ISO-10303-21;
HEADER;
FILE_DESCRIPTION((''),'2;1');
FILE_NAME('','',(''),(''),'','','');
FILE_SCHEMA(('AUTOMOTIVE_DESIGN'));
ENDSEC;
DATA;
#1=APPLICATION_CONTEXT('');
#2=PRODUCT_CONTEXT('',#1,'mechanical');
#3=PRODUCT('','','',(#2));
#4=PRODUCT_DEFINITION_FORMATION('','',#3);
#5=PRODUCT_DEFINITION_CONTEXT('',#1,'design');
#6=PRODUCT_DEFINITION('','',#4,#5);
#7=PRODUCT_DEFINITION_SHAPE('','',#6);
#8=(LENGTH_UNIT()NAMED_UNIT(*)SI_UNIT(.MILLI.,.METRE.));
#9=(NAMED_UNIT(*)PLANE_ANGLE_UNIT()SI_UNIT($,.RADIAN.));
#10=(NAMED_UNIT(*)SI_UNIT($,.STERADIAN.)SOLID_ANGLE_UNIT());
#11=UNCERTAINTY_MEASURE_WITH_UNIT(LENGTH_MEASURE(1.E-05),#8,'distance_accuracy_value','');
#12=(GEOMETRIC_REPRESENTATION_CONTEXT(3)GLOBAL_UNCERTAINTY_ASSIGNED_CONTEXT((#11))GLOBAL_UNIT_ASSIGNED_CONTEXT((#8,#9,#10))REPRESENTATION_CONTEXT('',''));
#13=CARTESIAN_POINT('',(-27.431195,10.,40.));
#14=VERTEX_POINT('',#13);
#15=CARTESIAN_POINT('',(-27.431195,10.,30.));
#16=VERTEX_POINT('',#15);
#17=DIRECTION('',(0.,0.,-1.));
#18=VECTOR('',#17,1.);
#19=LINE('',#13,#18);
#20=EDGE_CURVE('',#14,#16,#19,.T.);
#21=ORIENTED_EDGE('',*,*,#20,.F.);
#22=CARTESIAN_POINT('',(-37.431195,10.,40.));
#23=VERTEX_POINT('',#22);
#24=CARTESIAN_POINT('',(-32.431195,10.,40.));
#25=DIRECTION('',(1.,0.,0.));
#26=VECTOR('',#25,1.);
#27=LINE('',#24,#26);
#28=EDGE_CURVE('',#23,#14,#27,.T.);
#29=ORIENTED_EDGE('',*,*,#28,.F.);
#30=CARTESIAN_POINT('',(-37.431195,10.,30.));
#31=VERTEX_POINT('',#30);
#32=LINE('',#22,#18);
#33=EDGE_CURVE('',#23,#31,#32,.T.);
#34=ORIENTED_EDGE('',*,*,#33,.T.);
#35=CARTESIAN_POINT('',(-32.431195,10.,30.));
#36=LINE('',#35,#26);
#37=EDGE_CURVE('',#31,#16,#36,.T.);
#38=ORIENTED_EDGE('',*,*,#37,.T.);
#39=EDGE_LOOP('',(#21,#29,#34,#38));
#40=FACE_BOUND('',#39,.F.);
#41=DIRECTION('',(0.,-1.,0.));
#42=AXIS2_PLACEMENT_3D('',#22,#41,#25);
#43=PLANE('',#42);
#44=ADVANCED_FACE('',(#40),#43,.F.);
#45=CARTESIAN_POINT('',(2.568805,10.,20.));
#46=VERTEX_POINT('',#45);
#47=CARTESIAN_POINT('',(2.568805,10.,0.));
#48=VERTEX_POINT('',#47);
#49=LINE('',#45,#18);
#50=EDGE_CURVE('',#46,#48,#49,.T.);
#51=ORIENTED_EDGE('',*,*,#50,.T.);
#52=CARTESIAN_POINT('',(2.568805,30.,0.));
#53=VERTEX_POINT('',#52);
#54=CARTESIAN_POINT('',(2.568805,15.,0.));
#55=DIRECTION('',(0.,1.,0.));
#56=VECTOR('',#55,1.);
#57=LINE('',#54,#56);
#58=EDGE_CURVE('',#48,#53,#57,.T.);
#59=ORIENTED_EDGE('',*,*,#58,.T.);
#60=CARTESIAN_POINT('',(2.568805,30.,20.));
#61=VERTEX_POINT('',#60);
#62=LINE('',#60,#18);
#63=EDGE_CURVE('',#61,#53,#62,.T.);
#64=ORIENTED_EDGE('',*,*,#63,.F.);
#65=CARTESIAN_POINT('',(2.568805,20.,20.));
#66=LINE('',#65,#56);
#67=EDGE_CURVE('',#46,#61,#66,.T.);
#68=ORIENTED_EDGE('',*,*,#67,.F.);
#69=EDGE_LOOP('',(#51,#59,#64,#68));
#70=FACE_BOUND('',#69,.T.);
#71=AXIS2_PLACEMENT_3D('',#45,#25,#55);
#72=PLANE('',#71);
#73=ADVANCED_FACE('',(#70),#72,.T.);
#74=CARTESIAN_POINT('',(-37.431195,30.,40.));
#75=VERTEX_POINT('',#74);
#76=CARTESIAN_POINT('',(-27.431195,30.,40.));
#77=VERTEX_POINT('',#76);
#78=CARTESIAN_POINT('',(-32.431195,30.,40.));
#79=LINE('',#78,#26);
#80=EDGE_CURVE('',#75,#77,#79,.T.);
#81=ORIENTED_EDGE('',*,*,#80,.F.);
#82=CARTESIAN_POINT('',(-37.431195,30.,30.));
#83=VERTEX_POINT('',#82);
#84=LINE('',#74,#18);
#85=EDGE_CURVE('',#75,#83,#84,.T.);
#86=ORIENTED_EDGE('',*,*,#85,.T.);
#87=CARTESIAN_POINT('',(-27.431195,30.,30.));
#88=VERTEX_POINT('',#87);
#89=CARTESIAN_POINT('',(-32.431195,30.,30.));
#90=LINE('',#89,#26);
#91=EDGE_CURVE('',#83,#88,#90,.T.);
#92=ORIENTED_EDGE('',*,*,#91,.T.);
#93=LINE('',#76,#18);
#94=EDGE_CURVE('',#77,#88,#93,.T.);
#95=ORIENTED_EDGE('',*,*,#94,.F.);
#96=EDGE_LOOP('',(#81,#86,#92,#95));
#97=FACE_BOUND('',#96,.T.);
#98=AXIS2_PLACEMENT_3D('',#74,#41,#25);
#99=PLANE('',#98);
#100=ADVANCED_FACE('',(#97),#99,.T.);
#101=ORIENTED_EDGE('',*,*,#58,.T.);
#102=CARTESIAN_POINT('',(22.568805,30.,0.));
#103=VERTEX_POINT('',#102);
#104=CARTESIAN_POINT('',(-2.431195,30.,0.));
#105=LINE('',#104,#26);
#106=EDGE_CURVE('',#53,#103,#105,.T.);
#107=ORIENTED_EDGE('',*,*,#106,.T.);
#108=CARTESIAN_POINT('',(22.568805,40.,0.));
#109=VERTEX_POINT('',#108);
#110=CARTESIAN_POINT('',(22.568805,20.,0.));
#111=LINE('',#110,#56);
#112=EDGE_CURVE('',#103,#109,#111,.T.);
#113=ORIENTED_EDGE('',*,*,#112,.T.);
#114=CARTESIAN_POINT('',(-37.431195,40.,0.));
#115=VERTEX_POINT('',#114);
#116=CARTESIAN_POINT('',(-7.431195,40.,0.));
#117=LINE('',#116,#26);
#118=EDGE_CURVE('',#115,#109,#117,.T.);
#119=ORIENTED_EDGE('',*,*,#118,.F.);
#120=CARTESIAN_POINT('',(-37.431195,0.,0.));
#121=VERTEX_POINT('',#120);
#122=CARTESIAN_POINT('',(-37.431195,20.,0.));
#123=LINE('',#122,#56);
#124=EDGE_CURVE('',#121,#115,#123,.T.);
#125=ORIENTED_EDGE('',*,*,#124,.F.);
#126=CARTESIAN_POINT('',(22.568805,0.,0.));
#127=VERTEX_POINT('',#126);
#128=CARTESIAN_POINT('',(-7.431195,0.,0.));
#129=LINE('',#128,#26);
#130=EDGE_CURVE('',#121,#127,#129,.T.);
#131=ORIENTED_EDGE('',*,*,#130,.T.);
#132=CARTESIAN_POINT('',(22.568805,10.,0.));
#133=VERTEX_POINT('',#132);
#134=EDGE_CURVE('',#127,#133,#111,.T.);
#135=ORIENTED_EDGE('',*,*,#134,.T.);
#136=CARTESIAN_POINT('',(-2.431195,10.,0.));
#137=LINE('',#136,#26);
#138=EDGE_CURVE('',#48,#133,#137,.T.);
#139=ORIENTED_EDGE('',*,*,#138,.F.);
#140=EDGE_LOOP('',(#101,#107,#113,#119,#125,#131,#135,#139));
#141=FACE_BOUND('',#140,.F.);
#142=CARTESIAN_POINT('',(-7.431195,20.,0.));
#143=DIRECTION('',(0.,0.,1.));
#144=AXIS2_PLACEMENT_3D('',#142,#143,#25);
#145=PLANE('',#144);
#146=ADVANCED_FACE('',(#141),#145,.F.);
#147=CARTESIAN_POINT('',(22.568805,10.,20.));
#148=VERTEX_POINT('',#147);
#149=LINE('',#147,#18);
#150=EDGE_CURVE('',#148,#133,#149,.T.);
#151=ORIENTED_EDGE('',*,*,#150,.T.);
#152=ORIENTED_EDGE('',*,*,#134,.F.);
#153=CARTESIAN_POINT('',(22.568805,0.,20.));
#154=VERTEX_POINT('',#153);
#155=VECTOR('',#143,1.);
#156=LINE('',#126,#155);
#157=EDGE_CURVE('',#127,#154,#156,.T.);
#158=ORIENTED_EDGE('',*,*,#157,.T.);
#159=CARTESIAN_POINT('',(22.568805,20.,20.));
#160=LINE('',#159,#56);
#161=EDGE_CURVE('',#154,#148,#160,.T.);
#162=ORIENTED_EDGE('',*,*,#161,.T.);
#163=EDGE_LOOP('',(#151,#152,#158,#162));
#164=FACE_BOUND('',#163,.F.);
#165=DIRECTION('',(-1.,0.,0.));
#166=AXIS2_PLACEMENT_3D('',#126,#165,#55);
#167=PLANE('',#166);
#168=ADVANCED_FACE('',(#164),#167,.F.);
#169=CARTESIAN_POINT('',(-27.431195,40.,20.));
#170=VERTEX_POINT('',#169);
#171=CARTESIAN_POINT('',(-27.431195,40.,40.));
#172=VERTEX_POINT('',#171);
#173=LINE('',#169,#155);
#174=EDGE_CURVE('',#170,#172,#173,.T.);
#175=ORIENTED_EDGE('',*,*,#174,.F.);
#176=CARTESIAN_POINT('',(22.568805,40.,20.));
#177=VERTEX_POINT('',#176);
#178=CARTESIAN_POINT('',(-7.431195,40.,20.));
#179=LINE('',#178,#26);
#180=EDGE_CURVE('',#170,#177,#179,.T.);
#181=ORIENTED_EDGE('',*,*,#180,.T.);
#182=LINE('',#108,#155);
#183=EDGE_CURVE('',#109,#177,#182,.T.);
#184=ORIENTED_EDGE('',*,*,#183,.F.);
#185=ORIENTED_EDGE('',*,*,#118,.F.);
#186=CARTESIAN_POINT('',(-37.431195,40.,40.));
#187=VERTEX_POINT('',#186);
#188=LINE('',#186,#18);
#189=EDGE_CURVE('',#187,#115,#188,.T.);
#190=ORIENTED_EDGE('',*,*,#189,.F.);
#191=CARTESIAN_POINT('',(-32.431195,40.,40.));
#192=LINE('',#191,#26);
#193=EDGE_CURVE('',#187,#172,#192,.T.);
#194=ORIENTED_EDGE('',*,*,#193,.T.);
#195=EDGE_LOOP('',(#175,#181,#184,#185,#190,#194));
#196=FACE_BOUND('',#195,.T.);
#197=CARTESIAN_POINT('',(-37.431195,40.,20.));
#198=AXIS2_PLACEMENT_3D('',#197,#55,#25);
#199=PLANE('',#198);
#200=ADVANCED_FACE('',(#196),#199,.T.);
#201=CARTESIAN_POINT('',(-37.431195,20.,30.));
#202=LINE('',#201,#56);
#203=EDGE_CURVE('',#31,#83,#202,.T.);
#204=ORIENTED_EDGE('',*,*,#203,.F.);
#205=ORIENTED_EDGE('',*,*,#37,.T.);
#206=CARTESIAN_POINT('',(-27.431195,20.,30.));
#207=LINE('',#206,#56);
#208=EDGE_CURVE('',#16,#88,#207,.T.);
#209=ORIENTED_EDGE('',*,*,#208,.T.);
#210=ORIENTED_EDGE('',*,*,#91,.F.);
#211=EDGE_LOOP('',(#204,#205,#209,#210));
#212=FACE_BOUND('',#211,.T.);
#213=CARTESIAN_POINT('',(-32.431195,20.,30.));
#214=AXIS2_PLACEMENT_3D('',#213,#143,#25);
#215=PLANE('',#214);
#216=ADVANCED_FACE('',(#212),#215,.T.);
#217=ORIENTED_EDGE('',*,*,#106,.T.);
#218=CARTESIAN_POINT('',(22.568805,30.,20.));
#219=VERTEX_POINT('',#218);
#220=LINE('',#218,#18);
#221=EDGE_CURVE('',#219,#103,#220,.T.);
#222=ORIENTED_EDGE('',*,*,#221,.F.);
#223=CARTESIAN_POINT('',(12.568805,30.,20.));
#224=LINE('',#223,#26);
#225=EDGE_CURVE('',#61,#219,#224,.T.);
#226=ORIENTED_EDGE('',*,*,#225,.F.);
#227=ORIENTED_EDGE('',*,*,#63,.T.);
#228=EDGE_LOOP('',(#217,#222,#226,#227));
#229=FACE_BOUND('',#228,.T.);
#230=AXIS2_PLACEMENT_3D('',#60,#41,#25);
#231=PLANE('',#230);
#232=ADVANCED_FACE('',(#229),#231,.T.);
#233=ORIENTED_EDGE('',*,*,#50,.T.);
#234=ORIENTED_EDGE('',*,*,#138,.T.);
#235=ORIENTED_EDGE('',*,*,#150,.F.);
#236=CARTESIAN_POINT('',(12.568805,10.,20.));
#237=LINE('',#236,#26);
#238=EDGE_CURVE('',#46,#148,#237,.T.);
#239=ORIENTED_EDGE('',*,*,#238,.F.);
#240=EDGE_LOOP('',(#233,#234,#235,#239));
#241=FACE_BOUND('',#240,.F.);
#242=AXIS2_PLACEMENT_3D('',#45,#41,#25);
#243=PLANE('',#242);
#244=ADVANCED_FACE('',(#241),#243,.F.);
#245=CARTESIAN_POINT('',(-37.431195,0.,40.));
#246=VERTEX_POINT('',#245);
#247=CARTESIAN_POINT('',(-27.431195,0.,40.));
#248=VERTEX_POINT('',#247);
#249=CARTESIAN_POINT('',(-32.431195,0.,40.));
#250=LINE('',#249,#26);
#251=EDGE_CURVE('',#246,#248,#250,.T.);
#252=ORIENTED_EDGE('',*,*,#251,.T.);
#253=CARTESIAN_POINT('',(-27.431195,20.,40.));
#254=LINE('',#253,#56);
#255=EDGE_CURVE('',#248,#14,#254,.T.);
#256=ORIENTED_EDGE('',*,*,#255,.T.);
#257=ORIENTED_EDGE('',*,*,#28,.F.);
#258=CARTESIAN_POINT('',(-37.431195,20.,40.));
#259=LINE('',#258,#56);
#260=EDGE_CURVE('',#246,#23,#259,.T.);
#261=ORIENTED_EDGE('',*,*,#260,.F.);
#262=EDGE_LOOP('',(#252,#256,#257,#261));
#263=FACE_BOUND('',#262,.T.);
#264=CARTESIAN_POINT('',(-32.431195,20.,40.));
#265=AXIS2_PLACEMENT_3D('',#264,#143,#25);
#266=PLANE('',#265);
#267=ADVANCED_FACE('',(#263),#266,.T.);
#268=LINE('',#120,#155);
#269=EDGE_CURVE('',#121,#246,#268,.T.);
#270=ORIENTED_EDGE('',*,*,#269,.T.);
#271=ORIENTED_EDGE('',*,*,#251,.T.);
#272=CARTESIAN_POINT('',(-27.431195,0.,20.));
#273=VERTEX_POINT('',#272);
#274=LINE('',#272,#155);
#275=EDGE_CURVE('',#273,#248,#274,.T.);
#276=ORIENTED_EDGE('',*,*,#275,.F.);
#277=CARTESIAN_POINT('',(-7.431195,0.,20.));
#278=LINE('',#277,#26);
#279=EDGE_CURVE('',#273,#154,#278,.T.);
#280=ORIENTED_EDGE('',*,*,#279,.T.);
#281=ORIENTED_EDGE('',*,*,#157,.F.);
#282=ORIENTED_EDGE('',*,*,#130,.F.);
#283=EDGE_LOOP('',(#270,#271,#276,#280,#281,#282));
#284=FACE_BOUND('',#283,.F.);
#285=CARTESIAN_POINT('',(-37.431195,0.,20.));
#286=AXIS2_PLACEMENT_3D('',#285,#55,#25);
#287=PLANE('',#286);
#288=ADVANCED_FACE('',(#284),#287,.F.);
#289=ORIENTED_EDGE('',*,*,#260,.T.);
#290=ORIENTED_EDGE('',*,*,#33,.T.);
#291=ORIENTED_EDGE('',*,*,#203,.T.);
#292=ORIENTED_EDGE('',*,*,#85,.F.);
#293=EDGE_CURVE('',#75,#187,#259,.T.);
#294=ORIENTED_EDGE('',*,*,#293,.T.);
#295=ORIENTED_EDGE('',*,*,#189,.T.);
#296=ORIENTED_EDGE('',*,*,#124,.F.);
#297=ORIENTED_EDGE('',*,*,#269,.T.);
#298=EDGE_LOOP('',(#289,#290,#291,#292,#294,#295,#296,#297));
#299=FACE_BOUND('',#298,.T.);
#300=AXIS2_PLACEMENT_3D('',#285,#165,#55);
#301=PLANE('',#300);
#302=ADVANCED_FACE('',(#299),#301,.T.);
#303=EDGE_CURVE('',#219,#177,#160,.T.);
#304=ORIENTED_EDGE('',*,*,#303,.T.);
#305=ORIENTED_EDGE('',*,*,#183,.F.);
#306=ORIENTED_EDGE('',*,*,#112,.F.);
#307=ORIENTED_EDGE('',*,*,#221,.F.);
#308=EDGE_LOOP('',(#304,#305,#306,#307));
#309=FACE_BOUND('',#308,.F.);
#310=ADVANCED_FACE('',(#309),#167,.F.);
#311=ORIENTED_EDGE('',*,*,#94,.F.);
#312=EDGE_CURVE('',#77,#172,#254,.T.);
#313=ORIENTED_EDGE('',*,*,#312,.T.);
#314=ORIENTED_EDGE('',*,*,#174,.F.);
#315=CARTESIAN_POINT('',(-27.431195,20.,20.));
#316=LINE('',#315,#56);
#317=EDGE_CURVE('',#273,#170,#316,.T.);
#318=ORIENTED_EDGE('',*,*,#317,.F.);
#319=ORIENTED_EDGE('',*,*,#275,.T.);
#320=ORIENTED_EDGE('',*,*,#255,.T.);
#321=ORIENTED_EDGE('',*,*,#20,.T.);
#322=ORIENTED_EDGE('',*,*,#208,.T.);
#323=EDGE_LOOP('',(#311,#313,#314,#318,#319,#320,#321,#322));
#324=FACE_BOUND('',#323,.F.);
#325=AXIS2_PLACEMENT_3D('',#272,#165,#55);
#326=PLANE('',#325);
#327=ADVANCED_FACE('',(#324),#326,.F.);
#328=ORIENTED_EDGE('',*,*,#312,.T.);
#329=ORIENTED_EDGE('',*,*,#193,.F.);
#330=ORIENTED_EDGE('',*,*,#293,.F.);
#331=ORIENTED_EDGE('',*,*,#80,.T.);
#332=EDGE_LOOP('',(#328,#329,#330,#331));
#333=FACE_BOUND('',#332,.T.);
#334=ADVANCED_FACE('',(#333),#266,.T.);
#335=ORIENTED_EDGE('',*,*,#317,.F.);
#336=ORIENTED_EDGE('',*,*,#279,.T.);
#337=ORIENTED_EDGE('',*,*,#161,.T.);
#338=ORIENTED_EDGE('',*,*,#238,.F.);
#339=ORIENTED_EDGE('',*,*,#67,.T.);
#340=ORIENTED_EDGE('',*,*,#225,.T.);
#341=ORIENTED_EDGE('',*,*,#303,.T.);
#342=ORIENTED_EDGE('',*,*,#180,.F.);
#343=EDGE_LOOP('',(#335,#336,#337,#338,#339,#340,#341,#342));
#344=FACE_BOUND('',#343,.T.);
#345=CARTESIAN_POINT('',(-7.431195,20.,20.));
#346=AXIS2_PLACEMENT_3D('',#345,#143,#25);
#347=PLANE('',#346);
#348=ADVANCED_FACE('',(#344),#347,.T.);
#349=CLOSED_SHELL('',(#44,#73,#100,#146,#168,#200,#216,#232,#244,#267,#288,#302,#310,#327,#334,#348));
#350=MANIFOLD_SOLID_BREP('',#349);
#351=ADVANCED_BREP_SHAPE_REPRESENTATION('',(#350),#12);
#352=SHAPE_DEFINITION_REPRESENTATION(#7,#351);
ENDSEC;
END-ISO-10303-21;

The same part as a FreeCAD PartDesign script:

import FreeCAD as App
import Part
import Sketcher

V = App.Vector
Q = App.Units.Quantity


def add_polygon(sketch, points):
    """Adds a closed chain of lines whose ends are joined by coincident constraints."""
    first, n = sketch.GeometryCount, len(points)
    for a, b in zip(points, points[1:] + points[:1]):
        sketch.addGeometry(Part.LineSegment(App.Vector(*a, 0), App.Vector(*b, 0)), False)
    for i in range(n):
        sketch.addConstraint(Sketcher.Constraint("Coincident", first + i, 2, first + (i + 1) % n, 1))

doc = App.newDocument("Part")
body = doc.addObject("PartDesign::Body", "Body")

# Sketch on XY plane
sketch1 = body.newObject("Sketcher::SketchObject", "Sketch")
sketch1.AttachmentSupport = (doc.getObject("XY_Plane"), [""])
sketch1.MapMode = "FlatFace"
add_polygon(sketch1, [(-37, 40), (-37, 0), (23, 0), (23, 40)])  # lines 0-3
sketch1.addConstraint(Sketcher.Constraint("Vertical", 0))
sketch1.addConstraint(Sketcher.Constraint("Horizontal", 1))
sketch1.addConstraint(Sketcher.Constraint("Vertical", 2))
sketch1.addConstraint(Sketcher.Constraint("Horizontal", 3))
sketch1.addConstraint(Sketcher.Constraint("PointOnObject", 0, 2, -1))
sketch1.addConstraint(Sketcher.Constraint("DistanceX", 1, 1, 1, 2, Q("60 mm")))
sketch1.addConstraint(Sketcher.Constraint("DistanceY", 0, 2, 0, 1, Q("40 mm")))
sketch1.addConstraint(Sketcher.Constraint("DistanceX", 0, 2, -1, 1, Q("37.431195 mm")))
pad1 = body.newObject("PartDesign::Pad", "Pad")
pad1.Profile = sketch1
pad1.Length = 20

# Sketch on XY plane
sketch2 = body.newObject("Sketcher::SketchObject", "Sketch001")
sketch2.AttachmentSupport = (doc.getObject("XY_Plane"), [""])
sketch2.MapMode = "FlatFace"
sketch2.AttachmentOffset = App.Placement(V(0, 0, 20), App.Rotation())
add_polygon(sketch2, [(-37, 40), (-37, 0), (-27, 0), (-27, 40)])  # lines 0-3
sketch2.addConstraint(Sketcher.Constraint("Vertical", 0))
sketch2.addConstraint(Sketcher.Constraint("Horizontal", 1))
sketch2.addConstraint(Sketcher.Constraint("Vertical", 2))
sketch2.addConstraint(Sketcher.Constraint("Horizontal", 3))
sketch2.addConstraint(Sketcher.Constraint("PointOnObject", 0, 2, -1))
sketch2.addConstraint(Sketcher.Constraint("DistanceX", 1, 1, 1, 2, Q("10 mm")))
sketch2.addConstraint(Sketcher.Constraint("DistanceY", 0, 2, 0, 1, Q("40 mm")))
sketch2.addConstraint(Sketcher.Constraint("DistanceX", 0, 2, -1, 1, Q("37.431195 mm")))
pad2 = body.newObject("PartDesign::Pad", "Pad001")
pad2.Profile = sketch2
pad2.Length = 20

# Sketch on XY plane
sketch3 = body.newObject("Sketcher::SketchObject", "Sketch002")
sketch3.AttachmentSupport = (doc.getObject("XY_Plane"), [""])
sketch3.MapMode = "FlatFace"
sketch3.AttachmentOffset = App.Placement(V(0, 0, 20), App.Rotation())
add_polygon(sketch3, [(3, 30), (3, 10), (23, 10), (23, 30)])  # lines 0-3
sketch3.addConstraint(Sketcher.Constraint("Vertical", 0))
sketch3.addConstraint(Sketcher.Constraint("Horizontal", 1))
sketch3.addConstraint(Sketcher.Constraint("Vertical", 2))
sketch3.addConstraint(Sketcher.Constraint("Horizontal", 3))
sketch3.addConstraint(Sketcher.Constraint("Equal", 3, 0))
sketch3.addConstraint(Sketcher.Constraint("DistanceX", 1, 1, 1, 2, Q("20 mm")))
sketch3.addConstraint(Sketcher.Constraint("DistanceY", -1, 1, 0, 2, Q("10 mm")))
sketch3.addConstraint(Sketcher.Constraint("DistanceX", -1, 1, 0, 2, Q("2.568805 mm")))
pocket1 = body.newObject("PartDesign::Pocket", "Pocket")
pocket1.Profile = sketch3
pocket1.Type = "ThroughAll"

# Sketch on XY plane
sketch4 = body.newObject("Sketcher::SketchObject", "Sketch003")
sketch4.AttachmentSupport = (doc.getObject("XY_Plane"), [""])
sketch4.MapMode = "FlatFace"
sketch4.AttachmentOffset = App.Placement(V(0, 0, 40), App.Rotation())
add_polygon(sketch4, [(-37, 30), (-37, 10), (-27, 10), (-27, 30)])  # lines 0-3
sketch4.addConstraint(Sketcher.Constraint("Vertical", 0))
sketch4.addConstraint(Sketcher.Constraint("Horizontal", 1))
sketch4.addConstraint(Sketcher.Constraint("Vertical", 2))
sketch4.addConstraint(Sketcher.Constraint("Horizontal", 3))
sketch4.addConstraint(Sketcher.Constraint("DistanceX", 1, 1, 1, 2, Q("10 mm")))
sketch4.addConstraint(Sketcher.Constraint("DistanceY", 0, 2, 0, 1, Q("20 mm")))
sketch4.addConstraint(Sketcher.Constraint("DistanceY", -1, 1, 0, 2, Q("10 mm")))
sketch4.addConstraint(Sketcher.Constraint("DistanceX", 0, 2, -1, 1, Q("37.431195 mm")))
pocket2 = body.newObject("PartDesign::Pocket", "Pocket001")
pocket2.Profile = sketch4
pocket2.Length = 10

doc.recompute()
